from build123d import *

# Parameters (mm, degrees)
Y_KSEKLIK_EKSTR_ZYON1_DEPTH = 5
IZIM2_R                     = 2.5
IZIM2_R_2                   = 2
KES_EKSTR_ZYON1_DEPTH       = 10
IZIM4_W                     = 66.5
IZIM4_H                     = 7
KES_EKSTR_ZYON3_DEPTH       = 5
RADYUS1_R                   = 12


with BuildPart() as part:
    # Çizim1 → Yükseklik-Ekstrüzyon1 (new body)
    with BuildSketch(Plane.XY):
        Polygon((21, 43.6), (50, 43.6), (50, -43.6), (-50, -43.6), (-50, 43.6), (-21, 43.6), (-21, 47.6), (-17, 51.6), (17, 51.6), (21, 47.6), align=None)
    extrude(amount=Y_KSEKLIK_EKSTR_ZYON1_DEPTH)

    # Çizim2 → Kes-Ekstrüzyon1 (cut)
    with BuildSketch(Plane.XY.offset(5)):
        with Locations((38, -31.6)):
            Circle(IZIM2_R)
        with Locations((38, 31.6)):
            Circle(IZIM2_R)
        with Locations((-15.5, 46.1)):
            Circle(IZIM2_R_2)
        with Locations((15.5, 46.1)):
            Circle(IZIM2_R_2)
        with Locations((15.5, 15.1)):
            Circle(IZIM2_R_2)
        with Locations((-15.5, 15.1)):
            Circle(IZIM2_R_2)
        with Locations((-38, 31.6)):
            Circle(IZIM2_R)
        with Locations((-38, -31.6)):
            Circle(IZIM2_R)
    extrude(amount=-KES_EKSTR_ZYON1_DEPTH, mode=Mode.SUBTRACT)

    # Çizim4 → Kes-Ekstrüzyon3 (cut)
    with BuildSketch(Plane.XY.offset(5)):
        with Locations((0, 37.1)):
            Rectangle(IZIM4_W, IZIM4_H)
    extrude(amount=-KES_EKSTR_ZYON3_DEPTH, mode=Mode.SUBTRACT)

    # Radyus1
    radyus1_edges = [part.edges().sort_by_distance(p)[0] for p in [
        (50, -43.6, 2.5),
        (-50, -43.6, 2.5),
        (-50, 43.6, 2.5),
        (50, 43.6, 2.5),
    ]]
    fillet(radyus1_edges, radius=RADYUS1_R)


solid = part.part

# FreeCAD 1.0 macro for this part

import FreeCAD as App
import Part
import Sketcher
from FreeCAD import Vector
Q = App.Units.Quantity


def edges_at(feature, points):
    """Names of the edges that pass closest to the given points."""
    edges = feature.Shape.Edges
    near = lambda p: min(range(len(edges)), key=lambda i: edges[i].distToShape(Part.Vertex(*p))[0])
    return sorted({f"Edge{near(p) + 1}" for p in points})

doc = App.newDocument("Part")
body = doc.addObject("PartDesign::Body", "Body")

# Sketch on XY plane
sketch1 = doc.addObject("Sketcher::SketchObject", "Sketch")
body.addObject(sketch1)
sketch1.AttachmentSupport = (doc.XY_Plane, [""])
sketch1.MapMode = "FlatFace"
sketch1.addGeometry([
    Part.LineSegment(Vector(50, 43.6, 0), Vector(21, 43.6, 0)),  # 0
    Part.LineSegment(Vector(21, 43.6, 0), Vector(21, 47.6, 0)),  # 1
    Part.LineSegment(Vector(21, 47.6, 0), Vector(17, 51.6, 0)),  # 2
    Part.LineSegment(Vector(17, 51.6, 0), Vector(-17, 51.6, 0)),  # 3
    Part.LineSegment(Vector(-17, 51.6, 0), Vector(-21, 47.6, 0)),  # 4
    Part.LineSegment(Vector(-21, 47.6, 0), Vector(-21, 43.6, 0)),  # 5
    Part.LineSegment(Vector(-21, 43.6, 0), Vector(-50, 43.6, 0)),  # 6
    Part.LineSegment(Vector(-50, 43.6, 0), Vector(-50, -43.6, 0)),  # 7
    Part.LineSegment(Vector(-50, -43.6, 0), Vector(50, -43.6, 0)),  # 8
    Part.LineSegment(Vector(50, -43.6, 0), Vector(50, 43.6, 0)),  # 9
], False)
sketch1.addConstraint([
    Sketcher.Constraint("Coincident", 0, 2, 1, 1),
    Sketcher.Constraint("Coincident", 1, 2, 2, 1),
    Sketcher.Constraint("Coincident", 2, 2, 3, 1),
    Sketcher.Constraint("Coincident", 3, 2, 4, 1),
    Sketcher.Constraint("Coincident", 4, 2, 5, 1),
    Sketcher.Constraint("Coincident", 5, 2, 6, 1),
    Sketcher.Constraint("Coincident", 6, 2, 7, 1),
    Sketcher.Constraint("Coincident", 7, 2, 8, 1),
    Sketcher.Constraint("Coincident", 8, 2, 9, 1),
    Sketcher.Constraint("Coincident", 9, 2, 0, 1),
    Sketcher.Constraint("Horizontal", 0),
    Sketcher.Constraint("Vertical", 1),
    Sketcher.Constraint("Horizontal", 3),
    Sketcher.Constraint("Vertical", 5),
    Sketcher.Constraint("Horizontal", 6),
    Sketcher.Constraint("Vertical", 7),
    Sketcher.Constraint("Horizontal", 8),
    Sketcher.Constraint("Vertical", 9),
    Sketcher.Constraint("Symmetric", 6, 2, 8, 2, -1, 1),
    Sketcher.Constraint("Symmetric", 1, 2, 4, 2, -2),
    Sketcher.Constraint("Perpendicular", 2, 4),
    Sketcher.Constraint("Horizontal", 0, 2, 5, 2),
    Sketcher.Constraint("Equal", 2, 4),
    Sketcher.Constraint("DistanceX", 0, 2, 0, 1, Q("29 mm")),
    Sketcher.Constraint("DistanceX", 3, 2, 3, 1, Q("34 mm")),
    Sketcher.Constraint("DistanceX", 8, 1, 8, 2, Q("100 mm")),
    Sketcher.Constraint("DistanceY", 1, 1, 1, 2, Q("4 mm")),
    Sketcher.Constraint("DistanceY", 7, 2, 7, 1, Q("87.2 mm")),
])
pad1 = doc.addObject("PartDesign::Pad", "Pad")
body.addObject(pad1)
pad1.Profile = sketch1
pad1.Length = 5

# Sketch on XY plane
sketch2 = doc.addObject("Sketcher::SketchObject", "Sketch001")
body.addObject(sketch2)
sketch2.AttachmentSupport = (doc.XY_Plane, [""])
sketch2.MapMode = "FlatFace"
sketch2.AttachmentOffset = App.Placement(Vector(0, 0, 5), App.Rotation())
sketch2.addGeometry([
    Part.Circle(Vector(38, -31.6, 0), Vector(0, 0, 1), 2.5),  # 0
    Part.Circle(Vector(38, 31.6, 0), Vector(0, 0, 1), 2.5),  # 1
    Part.Circle(Vector(-15.5, 46.1, 0), Vector(0, 0, 1), 2),  # 2
    Part.Circle(Vector(15.5, 46.1, 0), Vector(0, 0, 1), 2),  # 3
    Part.Circle(Vector(15.5, 15.1, 0), Vector(0, 0, 1), 2),  # 4
    Part.Circle(Vector(-15.5, 15.1, 0), Vector(0, 0, 1), 2),  # 5
    Part.Circle(Vector(-38, 31.6, 0), Vector(0, 0, 1), 2.5),  # 6
    Part.Circle(Vector(-38, -31.6, 0), Vector(0, 0, 1), 2.5),  # 7
], False)
sketch2.addConstraint([
    Sketcher.Constraint("Equal", 0, 1),
    Sketcher.Constraint("Equal", 2, 3),
    Sketcher.Constraint("Equal", 3, 4),
    Sketcher.Constraint("Equal", 4, 5),
    Sketcher.Constraint("Equal", 1, 6),
    Sketcher.Constraint("Equal", 6, 7),
    Sketcher.Constraint("Symmetric", 0, 3, 6, 3, -1, 1),
    Sketcher.Constraint("Symmetric", 1, 3, 7, 3, -1, 1),
    Sketcher.Constraint("Symmetric", 2, 3, 3, 3, -2),
    Sketcher.Constraint("Symmetric", 4, 3, 5, 3, -2),
    Sketcher.Constraint("Symmetric", 1, 3, 6, 3, -2),
    Sketcher.Constraint("Vertical", 3, 3, 4, 3),
    Sketcher.Constraint("Diameter", 0, Q("5 mm")),
    Sketcher.Constraint("Diameter", 2, Q("4 mm")),
    Sketcher.Constraint("DistanceX", -1, 1, 0, 3, Q("38 mm")),
    Sketcher.Constraint("DistanceX", 2, 3, 3, 3, Q("31 mm")),
    Sketcher.Constraint("DistanceY", 4, 3, 3, 3, Q("31 mm")),
    Sketcher.Constraint("DistanceY", 0, 3, -1, 1, Q("31.6 mm")),
    Sketcher.Constraint("DistanceY", -1, 1, 2, 3, Q("46.1 mm")),
])
pocket1 = doc.addObject("PartDesign::Pocket", "Pocket")
body.addObject(pocket1)
pocket1.Profile = sketch2
pocket1.Length = 10

# Sketch on XY plane
sketch3 = doc.addObject("Sketcher::SketchObject", "Sketch002")
body.addObject(sketch3)
sketch3.AttachmentSupport = (doc.XY_Plane, [""])
sketch3.MapMode = "FlatFace"
sketch3.AttachmentOffset = App.Placement(Vector(0, 0, 5), App.Rotation())
sketch3.addGeometry([
    Part.LineSegment(Vector(-33, 41, 0), Vector(-33, 34, 0)),
    Part.LineSegment(Vector(-33, 34, 0), Vector(33, 34, 0)),
    Part.LineSegment(Vector(33, 34, 0), Vector(33, 41, 0)),
    Part.LineSegment(Vector(33, 41, 0), Vector(-33, 41, 0)),
], False)
sketch3.addConstraint([
    Sketcher.Constraint("Coincident", 0, 2, 1, 1),
    Sketcher.Constraint("Coincident", 1, 2, 2, 1),
    Sketcher.Constraint("Coincident", 2, 2, 3, 1),
    Sketcher.Constraint("Coincident", 3, 2, 0, 1),
    Sketcher.Constraint("Vertical", 0),
    Sketcher.Constraint("Horizontal", 1),
    Sketcher.Constraint("Vertical", 2),
    Sketcher.Constraint("Horizontal", 3),
    Sketcher.Constraint("DistanceY", 0, 2, 0, 1, Q("7 mm")),
    Sketcher.Constraint("DistanceX", 1, 1, 1, 2, Q("66.5 mm")),
    Sketcher.Constraint("DistanceY", -1, 1, 0, 2, Q("33.6 mm")),
    Sketcher.Constraint("DistanceX", 0, 2, -1, 1, Q("33.25 mm")),
])
pocket2 = doc.addObject("PartDesign::Pocket", "Pocket001")
body.addObject(pocket2)
pocket2.Profile = sketch3
pocket2.Length = 5
doc.recompute()

fillet = doc.addObject("PartDesign::Fillet", "Fillet")
body.addObject(fillet)
fillet.Base = (pocket2, edges_at(pocket2, [
    (50, -43.6, 2.5),
    (-50, -43.6, 2.5),
    (-50, 43.6, 2.5),
    (50, 43.6, 2.5),
]))
fillet.Radius = 12

doc.recompute()
